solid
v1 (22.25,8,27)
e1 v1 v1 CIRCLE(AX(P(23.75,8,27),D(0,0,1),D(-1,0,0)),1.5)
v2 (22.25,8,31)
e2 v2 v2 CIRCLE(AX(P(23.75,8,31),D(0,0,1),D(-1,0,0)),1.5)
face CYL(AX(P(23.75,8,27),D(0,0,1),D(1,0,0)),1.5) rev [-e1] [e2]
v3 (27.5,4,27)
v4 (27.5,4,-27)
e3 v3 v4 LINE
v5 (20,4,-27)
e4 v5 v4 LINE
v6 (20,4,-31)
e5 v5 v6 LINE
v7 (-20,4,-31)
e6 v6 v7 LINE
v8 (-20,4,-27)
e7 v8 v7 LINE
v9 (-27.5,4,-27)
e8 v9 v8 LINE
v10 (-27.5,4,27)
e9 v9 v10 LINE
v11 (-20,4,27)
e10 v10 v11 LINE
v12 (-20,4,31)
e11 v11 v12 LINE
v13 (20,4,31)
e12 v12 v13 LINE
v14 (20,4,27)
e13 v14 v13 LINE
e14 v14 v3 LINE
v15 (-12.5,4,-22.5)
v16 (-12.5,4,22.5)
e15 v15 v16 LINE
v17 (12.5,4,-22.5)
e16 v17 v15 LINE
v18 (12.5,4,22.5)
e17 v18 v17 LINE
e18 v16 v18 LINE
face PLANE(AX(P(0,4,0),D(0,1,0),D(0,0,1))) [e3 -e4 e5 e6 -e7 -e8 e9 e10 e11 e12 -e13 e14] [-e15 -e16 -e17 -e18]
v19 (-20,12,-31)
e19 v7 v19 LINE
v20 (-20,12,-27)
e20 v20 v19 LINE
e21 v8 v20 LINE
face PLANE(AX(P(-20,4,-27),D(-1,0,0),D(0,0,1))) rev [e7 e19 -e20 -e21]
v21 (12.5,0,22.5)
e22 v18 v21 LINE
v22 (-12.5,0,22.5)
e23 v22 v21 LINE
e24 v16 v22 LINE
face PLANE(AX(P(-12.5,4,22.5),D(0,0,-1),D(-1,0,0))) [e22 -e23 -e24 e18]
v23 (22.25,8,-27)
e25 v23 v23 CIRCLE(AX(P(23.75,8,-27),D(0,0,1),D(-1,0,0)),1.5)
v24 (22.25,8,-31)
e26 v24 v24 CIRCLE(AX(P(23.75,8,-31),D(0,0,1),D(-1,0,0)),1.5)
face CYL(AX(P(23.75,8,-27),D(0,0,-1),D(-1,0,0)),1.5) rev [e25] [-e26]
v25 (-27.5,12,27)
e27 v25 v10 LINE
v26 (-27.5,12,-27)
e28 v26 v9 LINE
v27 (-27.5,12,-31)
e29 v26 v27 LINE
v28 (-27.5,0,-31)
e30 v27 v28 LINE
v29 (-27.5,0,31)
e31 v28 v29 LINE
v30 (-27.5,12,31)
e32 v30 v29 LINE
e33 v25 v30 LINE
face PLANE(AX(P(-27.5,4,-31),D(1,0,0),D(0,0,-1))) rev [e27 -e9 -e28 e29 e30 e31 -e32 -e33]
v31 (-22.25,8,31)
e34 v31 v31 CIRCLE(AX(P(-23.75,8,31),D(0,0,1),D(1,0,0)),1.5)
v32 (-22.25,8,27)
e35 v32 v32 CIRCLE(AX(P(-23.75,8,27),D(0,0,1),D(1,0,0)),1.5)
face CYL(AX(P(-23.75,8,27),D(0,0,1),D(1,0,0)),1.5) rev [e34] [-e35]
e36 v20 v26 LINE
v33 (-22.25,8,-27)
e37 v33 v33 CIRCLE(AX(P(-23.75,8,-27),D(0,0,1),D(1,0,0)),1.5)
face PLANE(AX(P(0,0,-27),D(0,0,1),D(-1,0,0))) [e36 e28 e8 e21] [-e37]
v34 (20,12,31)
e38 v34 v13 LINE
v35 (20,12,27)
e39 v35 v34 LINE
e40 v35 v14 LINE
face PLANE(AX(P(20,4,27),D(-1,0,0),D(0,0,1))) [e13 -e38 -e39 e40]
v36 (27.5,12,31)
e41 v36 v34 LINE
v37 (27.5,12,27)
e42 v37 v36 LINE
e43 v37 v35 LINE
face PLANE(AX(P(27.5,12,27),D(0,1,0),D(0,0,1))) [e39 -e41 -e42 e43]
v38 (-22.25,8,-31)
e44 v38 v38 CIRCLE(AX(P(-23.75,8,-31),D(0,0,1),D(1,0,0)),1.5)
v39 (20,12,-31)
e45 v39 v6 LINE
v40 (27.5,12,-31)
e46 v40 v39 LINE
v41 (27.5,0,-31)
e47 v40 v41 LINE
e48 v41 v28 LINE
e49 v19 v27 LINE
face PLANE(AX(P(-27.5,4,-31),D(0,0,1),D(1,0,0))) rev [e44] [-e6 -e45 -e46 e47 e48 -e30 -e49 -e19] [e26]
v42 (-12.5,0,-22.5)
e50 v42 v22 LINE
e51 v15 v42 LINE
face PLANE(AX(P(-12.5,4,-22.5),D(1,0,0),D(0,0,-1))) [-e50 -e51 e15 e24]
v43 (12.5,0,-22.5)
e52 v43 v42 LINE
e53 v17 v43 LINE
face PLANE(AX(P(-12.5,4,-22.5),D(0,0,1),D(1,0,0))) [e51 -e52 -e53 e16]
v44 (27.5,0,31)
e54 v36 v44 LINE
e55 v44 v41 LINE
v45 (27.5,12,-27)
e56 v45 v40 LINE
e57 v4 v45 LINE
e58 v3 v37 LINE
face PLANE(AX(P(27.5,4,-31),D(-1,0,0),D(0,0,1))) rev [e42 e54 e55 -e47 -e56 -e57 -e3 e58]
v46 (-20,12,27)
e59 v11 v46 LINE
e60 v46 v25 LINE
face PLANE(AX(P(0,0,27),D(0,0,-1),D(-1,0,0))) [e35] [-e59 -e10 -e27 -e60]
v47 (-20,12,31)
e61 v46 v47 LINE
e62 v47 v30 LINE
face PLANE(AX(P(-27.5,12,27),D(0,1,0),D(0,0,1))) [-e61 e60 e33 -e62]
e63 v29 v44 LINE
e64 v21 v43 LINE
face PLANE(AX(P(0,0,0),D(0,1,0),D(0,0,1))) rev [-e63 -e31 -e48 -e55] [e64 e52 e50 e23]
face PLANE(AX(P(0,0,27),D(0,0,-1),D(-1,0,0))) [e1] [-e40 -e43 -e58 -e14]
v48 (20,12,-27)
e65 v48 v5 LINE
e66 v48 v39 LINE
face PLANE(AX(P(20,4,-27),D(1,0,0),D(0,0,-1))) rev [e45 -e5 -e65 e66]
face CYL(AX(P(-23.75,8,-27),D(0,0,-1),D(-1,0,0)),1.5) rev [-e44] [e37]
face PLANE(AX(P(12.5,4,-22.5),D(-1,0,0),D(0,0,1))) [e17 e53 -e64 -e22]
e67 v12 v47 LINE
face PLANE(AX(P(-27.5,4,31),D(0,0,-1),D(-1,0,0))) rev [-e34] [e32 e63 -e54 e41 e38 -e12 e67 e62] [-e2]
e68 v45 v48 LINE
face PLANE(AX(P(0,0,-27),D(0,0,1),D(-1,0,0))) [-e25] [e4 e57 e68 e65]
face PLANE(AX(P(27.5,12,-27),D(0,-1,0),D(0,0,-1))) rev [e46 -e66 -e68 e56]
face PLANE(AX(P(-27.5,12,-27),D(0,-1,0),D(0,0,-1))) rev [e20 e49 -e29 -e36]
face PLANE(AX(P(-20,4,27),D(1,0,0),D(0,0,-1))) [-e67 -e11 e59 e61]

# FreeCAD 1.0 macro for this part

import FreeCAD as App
import Part
import Sketcher
Q = App.Units.Quantity


def add_polygon(sketch, points):
    """Adds a closed chain of lines whose ends are joined by coincident constraints."""
    first, n = sketch.GeometryCount, len(points)
    for a, b in zip(points, points[1:] + points[:1]):
        sketch.addGeometry(Part.LineSegment(App.Vector(*a, 0), App.Vector(*b, 0)), False)
    for i in range(n):
        sketch.addConstraint(Sketcher.Constraint("Coincident", first + i, 2, first + (i + 1) % n, 1))

doc = App.newDocument("Part")
body = doc.addObject("PartDesign::Body", "Body")

# Sketch on XZ plane
sketch1 = body.newObject("Sketcher::SketchObject", "Sketch")
sketch1.AttachmentSupport = (doc.getObject("XZ_Plane"), [""])
sketch1.MapMode = "FlatFace"
add_polygon(sketch1, [(-28, -31), (-28, 31), (28, 31), (28, -31)])  # lines 0-3
add_polygon(sketch1, [(12, 22), (-12, 22), (-12, -22), (12, -22)])  # lines 4-7
sketch1.addConstraint(Sketcher.Constraint("Vertical", 0))
sketch1.addConstraint(Sketcher.Constraint("Horizontal", 1))
sketch1.addConstraint(Sketcher.Constraint("Vertical", 2))
sketch1.addConstraint(Sketcher.Constraint("Horizontal", 3))
sketch1.addConstraint(Sketcher.Constraint("Horizontal", 4))
sketch1.addConstraint(Sketcher.Constraint("Vertical", 5))
sketch1.addConstraint(Sketcher.Constraint("Horizontal", 6))
sketch1.addConstraint(Sketcher.Constraint("Vertical", 7))
sketch1.addConstraint(Sketcher.Constraint("Symmetric", 0, 2, 2, 2, -1, 1))
sketch1.addConstraint(Sketcher.Constraint("Symmetric", 4, 2, 6, 2, -1, 1))
sketch1.addConstraint(Sketcher.Constraint("DistanceX", 1, 1, 1, 2, Q("55 mm")))
sketch1.addConstraint(Sketcher.Constraint("DistanceX", 4, 2, 4, 1, Q("25 mm")))
sketch1.addConstraint(Sketcher.Constraint("DistanceY", 0, 1, 0, 2, Q("62 mm")))
sketch1.addConstraint(Sketcher.Constraint("DistanceY", 5, 2, 5, 1, Q("45 mm")))
pad1 = body.newObject("PartDesign::Pad", "Pad")
pad1.Profile = sketch1
pad1.Length = 4
pad1.Reversed = True

# Sketch on XY plane
sketch2 = body.newObject("Sketcher::SketchObject", "Sketch001")
sketch2.AttachmentSupport = (doc.getObject("XY_Plane"), [""])
sketch2.MapMode = "FlatFace"
sketch2.AttachmentOffset = App.Placement(App.Vector(0, 0, 31), App.Rotation())
add_polygon(sketch2, [(-27.5, 12), (-27.5, 4), (-20, 4), (-20, 12)])  # lines 0-3
sketch2.addGeometry(Part.Circle(App.Vector(-23.8, 8, 0), App.Vector(0, 0, 1), 1.5), False)  # 4
add_polygon(sketch2, [(20, 12), (20, 4), (27.5, 4), (27.5, 12)])  # lines 5-8
sketch2.addGeometry(Part.Circle(App.Vector(23.8, 8, 0), App.Vector(0, 0, 1), 1.5), False)  # 9
sketch2.addConstraint(Sketcher.Constraint("Vertical", 0))
sketch2.addConstraint(Sketcher.Constraint("Horizontal", 1))
sketch2.addConstraint(Sketcher.Constraint("Vertical", 2))
sketch2.addConstraint(Sketcher.Constraint("Horizontal", 3))
sketch2.addConstraint(Sketcher.Constraint("Vertical", 5))
sketch2.addConstraint(Sketcher.Constraint("Horizontal", 6))
sketch2.addConstraint(Sketcher.Constraint("Vertical", 7))
sketch2.addConstraint(Sketcher.Constraint("Horizontal", 8))
sketch2.addConstraint(Sketcher.Constraint("Equal", 4, 9))
sketch2.addConstraint(Sketcher.Constraint("Symmetric", 4, 3, 9, 3, -2))
sketch2.addConstraint(Sketcher.Constraint("Symmetric", 1, 2, 5, 2, -2))
sketch2.addConstraint(Sketcher.Constraint("Symmetric", 3, 2, 7, 2, -2))
sketch2.addConstraint(Sketcher.Constraint("Diameter", 4, Q("3 mm")))
sketch2.addConstraint(Sketcher.Constraint("DistanceY", 0, 2, 0, 1, Q("8 mm")))
sketch2.addConstraint(Sketcher.Constraint("DistanceX", 1, 1, 1, 2, Q("7.5 mm")))
sketch2.addConstraint(Sketcher.Constraint("DistanceY", -1, 1, 4, 3, Q("8 mm")))
sketch2.addConstraint(Sketcher.Constraint("DistanceY", -1, 1, 0, 2, Q("4 mm")))
sketch2.addConstraint(Sketcher.Constraint("DistanceX", 1, 2, -1, 1, Q("20 mm")))
sketch2.addConstraint(Sketcher.Constraint("DistanceX", 4, 3, 9, 3, Q("47.5 mm")))
pad2 = body.newObject("PartDesign::Pad", "Pad001")
pad2.Profile = sketch2
pad2.Length = 4
pad2.Reversed = True
doc.recompute()

mirrored = body.newObject("PartDesign::Mirrored", "Mirrored")
mirrored.Originals = [pad2]
mirrored.MirrorPlane = (doc.getObject("XY_Plane"), [""])
body.Tip = mirrored

doc.recompute()
